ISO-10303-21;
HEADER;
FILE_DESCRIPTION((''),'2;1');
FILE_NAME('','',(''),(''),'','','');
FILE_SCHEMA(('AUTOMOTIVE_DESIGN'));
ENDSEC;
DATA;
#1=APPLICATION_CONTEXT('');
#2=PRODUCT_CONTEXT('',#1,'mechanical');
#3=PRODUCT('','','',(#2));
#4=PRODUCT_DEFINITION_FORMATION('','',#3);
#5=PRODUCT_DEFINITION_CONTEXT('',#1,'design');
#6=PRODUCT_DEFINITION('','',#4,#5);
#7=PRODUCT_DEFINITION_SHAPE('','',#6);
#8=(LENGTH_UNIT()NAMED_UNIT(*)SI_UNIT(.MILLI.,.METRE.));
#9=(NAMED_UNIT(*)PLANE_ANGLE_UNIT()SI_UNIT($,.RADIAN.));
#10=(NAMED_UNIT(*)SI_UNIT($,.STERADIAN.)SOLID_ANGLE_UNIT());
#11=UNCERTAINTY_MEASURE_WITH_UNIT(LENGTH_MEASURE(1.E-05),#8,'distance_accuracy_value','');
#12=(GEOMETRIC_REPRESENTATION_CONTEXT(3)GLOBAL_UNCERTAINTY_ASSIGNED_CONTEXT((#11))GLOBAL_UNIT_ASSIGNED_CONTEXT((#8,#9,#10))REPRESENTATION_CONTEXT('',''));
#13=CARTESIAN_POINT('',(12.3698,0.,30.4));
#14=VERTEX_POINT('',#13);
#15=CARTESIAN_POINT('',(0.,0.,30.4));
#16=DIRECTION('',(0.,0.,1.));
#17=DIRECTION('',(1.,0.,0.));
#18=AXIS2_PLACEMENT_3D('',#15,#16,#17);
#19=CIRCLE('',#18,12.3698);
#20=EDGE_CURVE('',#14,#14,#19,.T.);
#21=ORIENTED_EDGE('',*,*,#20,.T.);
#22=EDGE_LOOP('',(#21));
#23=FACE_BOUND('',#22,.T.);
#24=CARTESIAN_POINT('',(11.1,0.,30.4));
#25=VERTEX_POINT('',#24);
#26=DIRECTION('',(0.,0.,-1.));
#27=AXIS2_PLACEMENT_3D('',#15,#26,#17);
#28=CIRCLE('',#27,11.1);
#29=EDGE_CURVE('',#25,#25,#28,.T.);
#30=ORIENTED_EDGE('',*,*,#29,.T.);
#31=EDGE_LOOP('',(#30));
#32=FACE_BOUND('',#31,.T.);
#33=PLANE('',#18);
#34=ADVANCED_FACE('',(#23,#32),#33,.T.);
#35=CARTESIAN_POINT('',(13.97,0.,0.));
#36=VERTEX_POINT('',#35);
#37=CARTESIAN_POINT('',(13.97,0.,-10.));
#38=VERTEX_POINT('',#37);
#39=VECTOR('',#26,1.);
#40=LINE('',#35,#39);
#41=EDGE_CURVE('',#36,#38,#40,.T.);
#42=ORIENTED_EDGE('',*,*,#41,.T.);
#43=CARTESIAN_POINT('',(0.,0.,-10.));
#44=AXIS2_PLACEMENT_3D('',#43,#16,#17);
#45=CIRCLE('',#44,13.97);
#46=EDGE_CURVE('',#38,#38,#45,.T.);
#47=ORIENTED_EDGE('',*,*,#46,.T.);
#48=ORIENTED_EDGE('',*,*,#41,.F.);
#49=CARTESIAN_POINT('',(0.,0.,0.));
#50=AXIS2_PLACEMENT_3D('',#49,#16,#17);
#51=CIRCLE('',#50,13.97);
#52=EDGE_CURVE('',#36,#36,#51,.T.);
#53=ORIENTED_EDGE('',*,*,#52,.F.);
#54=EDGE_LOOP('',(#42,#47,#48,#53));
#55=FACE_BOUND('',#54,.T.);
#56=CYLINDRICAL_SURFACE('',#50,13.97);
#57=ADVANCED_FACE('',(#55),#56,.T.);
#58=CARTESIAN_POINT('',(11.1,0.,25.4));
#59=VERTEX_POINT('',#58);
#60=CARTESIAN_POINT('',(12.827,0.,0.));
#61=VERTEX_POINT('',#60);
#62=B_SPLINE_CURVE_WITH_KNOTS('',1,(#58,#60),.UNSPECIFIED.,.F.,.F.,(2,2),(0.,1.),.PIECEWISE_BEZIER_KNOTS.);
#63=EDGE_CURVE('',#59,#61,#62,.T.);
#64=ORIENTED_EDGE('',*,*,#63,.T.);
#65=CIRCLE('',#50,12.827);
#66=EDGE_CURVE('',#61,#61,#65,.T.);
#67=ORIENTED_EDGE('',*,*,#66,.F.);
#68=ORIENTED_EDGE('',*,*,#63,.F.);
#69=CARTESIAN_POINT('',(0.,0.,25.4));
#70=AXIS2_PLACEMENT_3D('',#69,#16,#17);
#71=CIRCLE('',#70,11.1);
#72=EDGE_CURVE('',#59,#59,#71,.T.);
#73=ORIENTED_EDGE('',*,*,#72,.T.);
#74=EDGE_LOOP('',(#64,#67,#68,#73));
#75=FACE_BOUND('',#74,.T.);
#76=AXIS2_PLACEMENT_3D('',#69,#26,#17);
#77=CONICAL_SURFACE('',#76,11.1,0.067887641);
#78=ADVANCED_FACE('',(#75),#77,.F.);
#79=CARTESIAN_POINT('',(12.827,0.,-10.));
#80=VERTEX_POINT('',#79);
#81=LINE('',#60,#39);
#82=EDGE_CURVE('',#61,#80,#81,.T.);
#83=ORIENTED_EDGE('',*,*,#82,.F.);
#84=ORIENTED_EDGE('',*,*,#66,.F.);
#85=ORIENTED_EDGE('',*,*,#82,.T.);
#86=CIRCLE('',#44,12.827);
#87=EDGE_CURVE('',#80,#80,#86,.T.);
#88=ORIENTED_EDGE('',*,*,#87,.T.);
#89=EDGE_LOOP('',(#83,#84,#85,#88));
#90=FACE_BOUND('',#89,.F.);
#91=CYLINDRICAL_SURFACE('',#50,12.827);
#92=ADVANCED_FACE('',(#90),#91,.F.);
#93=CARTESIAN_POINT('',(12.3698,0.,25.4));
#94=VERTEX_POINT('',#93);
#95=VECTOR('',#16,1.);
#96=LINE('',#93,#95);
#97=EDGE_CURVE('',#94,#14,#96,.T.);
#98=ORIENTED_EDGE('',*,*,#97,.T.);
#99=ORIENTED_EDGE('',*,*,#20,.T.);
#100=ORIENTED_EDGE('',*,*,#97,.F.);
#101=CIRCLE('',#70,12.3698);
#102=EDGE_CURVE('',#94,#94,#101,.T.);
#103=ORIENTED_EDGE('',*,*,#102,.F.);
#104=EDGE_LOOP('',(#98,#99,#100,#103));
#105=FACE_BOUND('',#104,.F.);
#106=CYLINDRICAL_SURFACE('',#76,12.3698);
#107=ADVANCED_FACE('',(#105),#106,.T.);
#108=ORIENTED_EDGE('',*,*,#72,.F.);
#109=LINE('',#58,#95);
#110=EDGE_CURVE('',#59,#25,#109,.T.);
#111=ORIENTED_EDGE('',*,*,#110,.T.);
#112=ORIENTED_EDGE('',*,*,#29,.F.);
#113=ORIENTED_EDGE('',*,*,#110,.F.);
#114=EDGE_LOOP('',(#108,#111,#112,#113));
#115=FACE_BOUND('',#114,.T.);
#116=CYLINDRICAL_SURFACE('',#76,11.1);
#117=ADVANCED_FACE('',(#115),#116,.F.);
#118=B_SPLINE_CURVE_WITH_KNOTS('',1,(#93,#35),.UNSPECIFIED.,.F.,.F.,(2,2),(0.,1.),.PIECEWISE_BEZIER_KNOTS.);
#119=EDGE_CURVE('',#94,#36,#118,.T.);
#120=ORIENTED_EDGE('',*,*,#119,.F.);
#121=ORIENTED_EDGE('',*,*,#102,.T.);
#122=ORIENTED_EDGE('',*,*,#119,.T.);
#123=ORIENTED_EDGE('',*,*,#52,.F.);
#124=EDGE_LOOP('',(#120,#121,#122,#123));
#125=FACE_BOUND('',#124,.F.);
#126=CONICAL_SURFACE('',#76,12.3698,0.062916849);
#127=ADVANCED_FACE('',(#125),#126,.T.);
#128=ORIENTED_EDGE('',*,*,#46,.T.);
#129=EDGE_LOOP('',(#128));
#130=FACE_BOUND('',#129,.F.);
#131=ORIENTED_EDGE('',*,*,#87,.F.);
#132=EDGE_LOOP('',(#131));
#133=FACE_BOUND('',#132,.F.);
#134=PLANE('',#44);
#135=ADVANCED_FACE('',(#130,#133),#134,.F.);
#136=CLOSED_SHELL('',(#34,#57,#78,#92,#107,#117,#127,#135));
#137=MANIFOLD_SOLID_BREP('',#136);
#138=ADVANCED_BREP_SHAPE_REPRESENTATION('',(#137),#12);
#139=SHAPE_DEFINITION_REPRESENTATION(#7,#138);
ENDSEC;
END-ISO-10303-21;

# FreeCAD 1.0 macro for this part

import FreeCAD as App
import Part
import Sketcher

V = App.Vector
Q = App.Units.Quantity

doc = App.newDocument("Part")
body = doc.addObject("PartDesign::Body", "Body")

# Sketch on XY plane
sketch1 = body.newObject("Sketcher::SketchObject", "Sketch")
sketch1.AttachmentSupport = (doc.getObject("XY_Plane"), [""])
sketch1.MapMode = "FlatFace"
sketch1.AttachmentOffset = App.Placement(V(0, 0, 1 * 25.4), App.Rotation())
sketch1.addGeometry(Part.Circle(V(0, 0, 0), V(0, 0, 1), 12), False)
sketch1.addConstraint([
    Sketcher.Constraint("Coincident", 0, 3, -1, 1),
    Sketcher.Constraint("Diameter", 0, Q("0.974 in")),
])

# Sketch on XY plane
sketch2 = body.newObject("Sketcher::SketchObject", "Sketch001")
sketch2.AttachmentSupport = (doc.getObject("XY_Plane"), [""])
sketch2.MapMode = "FlatFace"
sketch2.addGeometry(Part.Circle(V(0, 0, 0), V(0, 0, 1), 14), False)
sketch2.addConstraint([
    Sketcher.Constraint("Coincident", 0, 3, -1, 1),
    Sketcher.Constraint("Diameter", 0, Q("1.1 in")),
])

additiveloft = body.newObject("PartDesign::AdditiveLoft", "AdditiveLoft")
additiveloft.Profile = sketch1
additiveloft.Sections = [sketch2]

# Sketch on XY plane
sketch3 = body.newObject("Sketcher::SketchObject", "Sketch002")
sketch3.AttachmentSupport = (doc.getObject("XY_Plane"), [""])
sketch3.MapMode = "FlatFace"
sketch3.AttachmentOffset = App.Placement(V(0, 0, 1 * 25.4), App.Rotation())
sketch3.addGeometry(Part.Circle(V(0, 0, 0), V(0, 0, 1), 11), False)
sketch3.addConstraint([
    Sketcher.Constraint("Coincident", 0, 3, -1, 1),
    Sketcher.Constraint("Diameter", 0, 22.2),
])

# Sketch on XY plane
sketch4 = body.newObject("Sketcher::SketchObject", "Sketch003")
sketch4.AttachmentSupport = (doc.getObject("XY_Plane"), [""])
sketch4.MapMode = "FlatFace"
sketch4.addGeometry(Part.Circle(V(0, 0, 0), V(0, 0, 1), 13), False)
sketch4.addConstraint([
    Sketcher.Constraint("Coincident", 0, 3, -1, 1),
    Sketcher.Constraint("Diameter", 0, Q("1.01 in")),
])

subtractiveloft = body.newObject("PartDesign::SubtractiveLoft", "SubtractiveLoft")
subtractiveloft.Profile = sketch3
subtractiveloft.Sections = [sketch4]

# Sketch on XY plane
sketch5 = body.newObject("Sketcher::SketchObject", "Sketch004")
sketch5.AttachmentSupport = (doc.getObject("XY_Plane"), [""])
sketch5.MapMode = "FlatFace"
sketch5.AttachmentOffset = App.Placement(V(0, 0, 1 * 25.4), App.Rotation())
sketch5.addGeometry(Part.Circle(V(0, 0, 0), V(0, 0, 1), 12), False)
sketch5.addConstraint([
    Sketcher.Constraint("Coincident", 0, 3, -1, 1),
    Sketcher.Constraint("Diameter", 0, Q("0.974 in")),
])
pad1 = body.newObject("PartDesign::Pad", "Pad")
pad1.Profile = sketch5
pad1.Length = 5

# Sketch on XY plane
sketch6 = body.newObject("Sketcher::SketchObject", "Sketch005")
sketch6.AttachmentSupport = (doc.getObject("XY_Plane"), [""])
sketch6.MapMode = "FlatFace"
sketch6.AttachmentOffset = App.Placement(V(0, 0, 1 * 25.4), App.Rotation())
sketch6.addGeometry(Part.Circle(V(0, 0, 0), V(0, 0, 1), 11), False)
sketch6.addConstraint([
    Sketcher.Constraint("Coincident", 0, 3, -1, 1),
    Sketcher.Constraint("Diameter", 0, 22.2),
])
pocket1 = body.newObject("PartDesign::Pocket", "Pocket")
pocket1.Profile = sketch6
pocket1.Length = Q("1 in")
pocket1.Reversed = True

# Sketch on XY plane
sketch7 = body.newObject("Sketcher::SketchObject", "Sketch006")
sketch7.AttachmentSupport = (doc.getObject("XY_Plane"), [""])
sketch7.MapMode = "FlatFace"
sketch7.addGeometry(Part.Circle(V(0, 0, 0), V(0, 0, 1), 14), False)
sketch7.addConstraint([
    Sketcher.Constraint("Coincident", 0, 3, -1, 1),
    Sketcher.Constraint("Diameter", 0, Q("1.1 in")),
])
pad2 = body.newObject("PartDesign::Pad", "Pad001")
pad2.Profile = sketch7
pad2.Length = 10
pad2.Reversed = True

# Sketch on XY plane
sketch8 = body.newObject("Sketcher::SketchObject", "Sketch007")
sketch8.AttachmentSupport = (doc.getObject("XY_Plane"), [""])
sketch8.MapMode = "FlatFace"
sketch8.addGeometry(Part.Circle(V(0, 0, 0), V(0, 0, 1), 13), False)
sketch8.addConstraint([
    Sketcher.Constraint("Coincident", 0, 3, -1, 1),
    Sketcher.Constraint("Diameter", 0, Q("1.01 in")),
])
pocket2 = body.newObject("PartDesign::Pocket", "Pocket001")
pocket2.Profile = sketch8
pocket2.Length = Q("1 in")

doc.recompute()
